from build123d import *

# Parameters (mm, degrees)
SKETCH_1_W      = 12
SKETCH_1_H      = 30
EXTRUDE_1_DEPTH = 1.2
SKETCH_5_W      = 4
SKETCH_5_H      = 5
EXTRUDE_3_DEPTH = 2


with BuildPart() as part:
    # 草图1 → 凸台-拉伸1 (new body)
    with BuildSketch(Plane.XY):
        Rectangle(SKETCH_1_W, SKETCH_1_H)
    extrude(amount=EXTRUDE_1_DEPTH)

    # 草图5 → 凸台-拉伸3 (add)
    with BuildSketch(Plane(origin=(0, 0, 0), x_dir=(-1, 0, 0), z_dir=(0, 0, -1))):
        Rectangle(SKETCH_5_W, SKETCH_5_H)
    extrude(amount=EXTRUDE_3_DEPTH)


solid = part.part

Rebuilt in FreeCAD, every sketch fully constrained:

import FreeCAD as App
import Part
import Sketcher

V = App.Vector
Q = App.Units.Quantity


def add_polygon(sketch, points):
    """Adds a closed chain of lines whose ends are joined by coincident constraints."""
    first, n = sketch.GeometryCount, len(points)
    for a, b in zip(points, points[1:] + points[:1]):
        sketch.addGeometry(Part.LineSegment(App.Vector(*a, 0), App.Vector(*b, 0)), False)
    for i in range(n):
        sketch.addConstraint(Sketcher.Constraint("Coincident", first + i, 2, first + (i + 1) % n, 1))

doc = App.newDocument("Part")
body = doc.addObject("PartDesign::Body", "Body")

# Sketch on XY plane
sketch1 = body.newObject("Sketcher::SketchObject", "Sketch")
sketch1.AttachmentSupport = (doc.getObject("XY_Plane"), [""])
sketch1.MapMode = "FlatFace"
add_polygon(sketch1, [(-6, 15), (-6, -15), (6, -15), (6, 15)])  # lines 0-3
sketch1.addConstraint([
    Sketcher.Constraint("Vertical", 0),
    Sketcher.Constraint("Horizontal", 1),
    Sketcher.Constraint("Vertical", 2),
    Sketcher.Constraint("Horizontal", 3),
    Sketcher.Constraint("Symmetric", 0, 2, 2, 2, -1, 1),
    Sketcher.Constraint("DistanceX", 1, 1, 1, 2, Q("12 mm")),
    Sketcher.Constraint("DistanceY", 0, 2, 0, 1, Q("30 mm")),
])
pad1 = body.newObject("PartDesign::Pad", "Pad")
pad1.Profile = sketch1
pad1.Length = 1.2

# Sketch on XY plane
sketch2 = body.newObject("Sketcher::SketchObject", "Sketch001")
sketch2.AttachmentSupport = (doc.getObject("XY_Plane"), [""])
sketch2.MapMode = "FlatFace"
add_polygon(sketch2, [(2, 2.5), (2, -2.5), (-2, -2.5), (-2, 2.5)])  # lines 0-3
sketch2.addConstraint([
    Sketcher.Constraint("Vertical", 0),
    Sketcher.Constraint("Horizontal", 1),
    Sketcher.Constraint("Vertical", 2),
    Sketcher.Constraint("Horizontal", 3),
    Sketcher.Constraint("Symmetric", 0, 2, 2, 2, -1, 1),
    Sketcher.Constraint("DistanceX", 1, 2, 1, 1, Q("4 mm")),
    Sketcher.Constraint("DistanceY", 0, 2, 0, 1, Q("5 mm")),
])
pad2 = body.newObject("PartDesign::Pad", "Pad001")
pad2.Profile = sketch2
pad2.Length = 2
pad2.Reversed = True

doc.recompute()
